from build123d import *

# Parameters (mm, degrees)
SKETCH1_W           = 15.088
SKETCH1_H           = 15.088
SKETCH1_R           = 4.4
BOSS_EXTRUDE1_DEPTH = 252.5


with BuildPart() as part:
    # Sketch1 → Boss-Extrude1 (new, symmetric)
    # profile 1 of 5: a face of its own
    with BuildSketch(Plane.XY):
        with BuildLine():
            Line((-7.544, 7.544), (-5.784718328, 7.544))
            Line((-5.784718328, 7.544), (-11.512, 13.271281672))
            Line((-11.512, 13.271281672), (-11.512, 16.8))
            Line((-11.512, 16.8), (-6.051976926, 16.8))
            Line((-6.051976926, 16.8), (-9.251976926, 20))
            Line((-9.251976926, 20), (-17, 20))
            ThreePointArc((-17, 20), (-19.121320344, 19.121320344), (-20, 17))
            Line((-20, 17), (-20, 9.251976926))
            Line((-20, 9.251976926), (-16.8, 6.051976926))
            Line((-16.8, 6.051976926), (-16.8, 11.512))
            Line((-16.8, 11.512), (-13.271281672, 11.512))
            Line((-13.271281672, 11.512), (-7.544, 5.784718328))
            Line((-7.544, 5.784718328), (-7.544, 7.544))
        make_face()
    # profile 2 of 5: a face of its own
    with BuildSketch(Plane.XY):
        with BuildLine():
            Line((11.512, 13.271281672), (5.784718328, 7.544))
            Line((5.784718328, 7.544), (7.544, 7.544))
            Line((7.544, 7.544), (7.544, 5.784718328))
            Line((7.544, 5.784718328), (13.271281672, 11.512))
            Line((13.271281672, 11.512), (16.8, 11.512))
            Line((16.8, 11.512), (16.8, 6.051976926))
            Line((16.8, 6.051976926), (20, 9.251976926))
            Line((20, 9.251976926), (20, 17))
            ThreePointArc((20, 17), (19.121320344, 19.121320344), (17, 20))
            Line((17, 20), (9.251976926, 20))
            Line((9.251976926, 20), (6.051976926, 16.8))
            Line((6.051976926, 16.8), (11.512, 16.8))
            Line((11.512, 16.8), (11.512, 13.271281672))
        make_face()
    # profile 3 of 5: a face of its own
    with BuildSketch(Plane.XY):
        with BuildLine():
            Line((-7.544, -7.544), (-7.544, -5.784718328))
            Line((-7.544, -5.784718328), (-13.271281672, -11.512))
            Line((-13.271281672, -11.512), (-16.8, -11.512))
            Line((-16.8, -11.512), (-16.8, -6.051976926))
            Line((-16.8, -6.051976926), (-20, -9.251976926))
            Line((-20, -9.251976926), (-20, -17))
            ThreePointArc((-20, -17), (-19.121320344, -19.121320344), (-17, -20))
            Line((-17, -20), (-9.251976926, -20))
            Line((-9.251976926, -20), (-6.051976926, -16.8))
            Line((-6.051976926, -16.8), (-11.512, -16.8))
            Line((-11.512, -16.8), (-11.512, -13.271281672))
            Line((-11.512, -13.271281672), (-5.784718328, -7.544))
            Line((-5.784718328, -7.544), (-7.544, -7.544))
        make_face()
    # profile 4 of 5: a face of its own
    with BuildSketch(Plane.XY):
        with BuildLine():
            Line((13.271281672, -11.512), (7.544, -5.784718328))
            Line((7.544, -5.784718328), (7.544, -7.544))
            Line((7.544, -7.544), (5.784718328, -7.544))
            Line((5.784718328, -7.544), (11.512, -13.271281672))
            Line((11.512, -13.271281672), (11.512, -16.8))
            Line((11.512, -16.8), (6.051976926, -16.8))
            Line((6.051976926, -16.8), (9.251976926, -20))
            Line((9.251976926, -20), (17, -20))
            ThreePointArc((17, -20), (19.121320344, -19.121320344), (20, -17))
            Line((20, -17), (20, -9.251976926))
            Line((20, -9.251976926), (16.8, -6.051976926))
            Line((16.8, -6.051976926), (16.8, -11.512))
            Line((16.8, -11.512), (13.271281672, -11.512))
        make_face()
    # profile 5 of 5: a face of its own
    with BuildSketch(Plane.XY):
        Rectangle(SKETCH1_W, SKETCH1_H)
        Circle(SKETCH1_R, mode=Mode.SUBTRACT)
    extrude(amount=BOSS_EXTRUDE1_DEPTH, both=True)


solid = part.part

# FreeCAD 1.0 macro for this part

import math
import FreeCAD as App
import Part
import Sketcher
from FreeCAD import Vector
Q = App.Units.Quantity

doc = App.newDocument("Part")
body = doc.addObject("PartDesign::Body", "Body")

# Sketch on XY plane
sketch1 = body.newObject("Sketcher::SketchObject", "Sketch")
sketch1.AttachmentSupport = (doc.getObject("XY_Plane"), [""])
sketch1.MapMode = "FlatFace"
sketch1.addGeometry(Part.LineSegment(Vector(-5.8, 7.5, 0), Vector(-11.5, 13.3, 0)), False)
sketch1.addGeometry(Part.LineSegment(Vector(-11.5, 13.3, 0), Vector(-11.5, 16.8, 0)), False)
sketch1.addGeometry(Part.LineSegment(Vector(-11.5, 16.8, 0), Vector(-6.1, 16.8, 0)), False)
sketch1.addGeometry(Part.LineSegment(Vector(-6.1, 16.8, 0), Vector(-9.3, 20, 0)), False)
sketch1.addGeometry(Part.LineSegment(Vector(-9.3, 20, 0), Vector(-17, 20, 0)), False)
sketch1.addGeometry(Part.ArcOfCircle(Part.Circle(Vector(-17, 17, 0), Vector(0, 0, 1), 3), math.radians(90), math.radians(180)), False)
sketch1.addGeometry(Part.LineSegment(Vector(-20, 17, 0), Vector(-20, 9.3, 0)), False)
sketch1.addGeometry(Part.LineSegment(Vector(-20, 9.3, 0), Vector(-16.8, 6.1, 0)), False)
sketch1.addGeometry(Part.LineSegment(Vector(-16.8, 6.1, 0), Vector(-16.8, 11.5, 0)), False)
sketch1.addGeometry(Part.LineSegment(Vector(-16.8, 11.5, 0), Vector(-13.3, 11.5, 0)), False)
sketch1.addGeometry(Part.LineSegment(Vector(-13.3, 11.5, 0), Vector(-7.5, 5.8, 0)), False)
sketch1.addGeometry(Part.LineSegment(Vector(-7.5, 5.8, 0), Vector(-7.5, -5.8, 0)), False)
sketch1.addGeometry(Part.LineSegment(Vector(-7.5, -5.8, 0), Vector(-13.3, -11.5, 0)), False)
sketch1.addGeometry(Part.LineSegment(Vector(-13.3, -11.5, 0), Vector(-16.8, -11.5, 0)), False)
sketch1.addGeometry(Part.LineSegment(Vector(-16.8, -11.5, 0), Vector(-16.8, -6.1, 0)), False)
sketch1.addGeometry(Part.LineSegment(Vector(-16.8, -6.1, 0), Vector(-20, -9.3, 0)), False)
sketch1.addGeometry(Part.LineSegment(Vector(-20, -9.3, 0), Vector(-20, -17, 0)), False)
sketch1.addGeometry(Part.ArcOfCircle(Part.Circle(Vector(-17, -17, 0), Vector(0, 0, 1), 3), math.radians(180), math.radians(270)), False)
sketch1.addGeometry(Part.LineSegment(Vector(-17, -20, 0), Vector(-9.3, -20, 0)), False)
sketch1.addGeometry(Part.LineSegment(Vector(-9.3, -20, 0), Vector(-6.1, -16.8, 0)), False)
sketch1.addGeometry(Part.LineSegment(Vector(-6.1, -16.8, 0), Vector(-11.5, -16.8, 0)), False)
sketch1.addGeometry(Part.LineSegment(Vector(-11.5, -16.8, 0), Vector(-11.5, -13.3, 0)), False)
sketch1.addGeometry(Part.LineSegment(Vector(-11.5, -13.3, 0), Vector(-5.8, -7.5, 0)), False)
sketch1.addGeometry(Part.LineSegment(Vector(-5.8, -7.5, 0), Vector(5.8, -7.5, 0)), False)
sketch1.addGeometry(Part.LineSegment(Vector(5.8, -7.5, 0), Vector(11.5, -13.3, 0)), False)
sketch1.addGeometry(Part.LineSegment(Vector(11.5, -13.3, 0), Vector(11.5, -16.8, 0)), False)
sketch1.addGeometry(Part.LineSegment(Vector(11.5, -16.8, 0), Vector(6.1, -16.8, 0)), False)
sketch1.addGeometry(Part.LineSegment(Vector(6.1, -16.8, 0), Vector(9.3, -20, 0)), False)
sketch1.addGeometry(Part.LineSegment(Vector(9.3, -20, 0), Vector(17, -20, 0)), False)
sketch1.addGeometry(Part.ArcOfCircle(Part.Circle(Vector(17, -17, 0), Vector(0, 0, 1), 3), math.radians(-90), math.radians(0)), False)
sketch1.addGeometry(Part.LineSegment(Vector(20, -17, 0), Vector(20, -9.3, 0)), False)
sketch1.addGeometry(Part.LineSegment(Vector(20, -9.3, 0), Vector(16.8, -6.1, 0)), False)
sketch1.addGeometry(Part.LineSegment(Vector(16.8, -6.1, 0), Vector(16.8, -11.5, 0)), False)
sketch1.addGeometry(Part.LineSegment(Vector(16.8, -11.5, 0), Vector(13.3, -11.5, 0)), False)
sketch1.addGeometry(Part.LineSegment(Vector(13.3, -11.5, 0), Vector(7.5, -5.8, 0)), False)
sketch1.addGeometry(Part.LineSegment(Vector(7.5, -5.8, 0), Vector(7.5, 5.8, 0)), False)
sketch1.addGeometry(Part.LineSegment(Vector(7.5, 5.8, 0), Vector(13.3, 11.5, 0)), False)
sketch1.addGeometry(Part.LineSegment(Vector(13.3, 11.5, 0), Vector(16.8, 11.5, 0)), False)
sketch1.addGeometry(Part.LineSegment(Vector(16.8, 11.5, 0), Vector(16.8, 6.1, 0)), False)
sketch1.addGeometry(Part.LineSegment(Vector(16.8, 6.1, 0), Vector(20, 9.3, 0)), False)
sketch1.addGeometry(Part.LineSegment(Vector(20, 9.3, 0), Vector(20, 17, 0)), False)
sketch1.addGeometry(Part.ArcOfCircle(Part.Circle(Vector(17, 17, 0), Vector(0, 0, 1), 3), math.radians(0), math.radians(90)), False)
sketch1.addGeometry(Part.LineSegment(Vector(17, 20, 0), Vector(9.3, 20, 0)), False)
sketch1.addGeometry(Part.LineSegment(Vector(9.3, 20, 0), Vector(6.1, 16.8, 0)), False)
sketch1.addGeometry(Part.LineSegment(Vector(6.1, 16.8, 0), Vector(11.5, 16.8, 0)), False)
sketch1.addGeometry(Part.LineSegment(Vector(11.5, 16.8, 0), Vector(11.5, 13.3, 0)), False)
sketch1.addGeometry(Part.LineSegment(Vector(11.5, 13.3, 0), Vector(5.8, 7.5, 0)), False)
sketch1.addGeometry(Part.LineSegment(Vector(5.8, 7.5, 0), Vector(-5.8, 7.5, 0)), False)
sketch1.addGeometry(Part.Circle(Vector(0, 0, 0), Vector(0, 0, 1), 4.4), False)
sketch1.addConstraint(Sketcher.Constraint("Coincident", 0, 2, 1, 1))
sketch1.addConstraint(Sketcher.Constraint("Coincident", 1, 2, 2, 1))
sketch1.addConstraint(Sketcher.Constraint("Coincident", 2, 2, 3, 1))
sketch1.addConstraint(Sketcher.Constraint("Coincident", 3, 2, 4, 1))
sketch1.addConstraint(Sketcher.Constraint("Tangent", 4, 2, 5, 1))
sketch1.addConstraint(Sketcher.Constraint("Tangent", 5, 2, 6, 1))
sketch1.addConstraint(Sketcher.Constraint("Coincident", 6, 2, 7, 1))
sketch1.addConstraint(Sketcher.Constraint("Coincident", 7, 2, 8, 1))
sketch1.addConstraint(Sketcher.Constraint("Coincident", 8, 2, 9, 1))
sketch1.addConstraint(Sketcher.Constraint("Coincident", 9, 2, 10, 1))
sketch1.addConstraint(Sketcher.Constraint("Coincident", 10, 2, 11, 1))
sketch1.addConstraint(Sketcher.Constraint("Coincident", 11, 2, 12, 1))
sketch1.addConstraint(Sketcher.Constraint("Coincident", 12, 2, 13, 1))
sketch1.addConstraint(Sketcher.Constraint("Coincident", 13, 2, 14, 1))
sketch1.addConstraint(Sketcher.Constraint("Coincident", 14, 2, 15, 1))
sketch1.addConstraint(Sketcher.Constraint("Coincident", 15, 2, 16, 1))
sketch1.addConstraint(Sketcher.Constraint("Tangent", 16, 2, 17, 1))
sketch1.addConstraint(Sketcher.Constraint("Tangent", 17, 2, 18, 1))
sketch1.addConstraint(Sketcher.Constraint("Coincident", 18, 2, 19, 1))
sketch1.addConstraint(Sketcher.Constraint("Coincident", 19, 2, 20, 1))
sketch1.addConstraint(Sketcher.Constraint("Coincident", 20, 2, 21, 1))
sketch1.addConstraint(Sketcher.Constraint("Coincident", 21, 2, 22, 1))
sketch1.addConstraint(Sketcher.Constraint("Coincident", 22, 2, 23, 1))
sketch1.addConstraint(Sketcher.Constraint("Coincident", 23, 2, 24, 1))
sketch1.addConstraint(Sketcher.Constraint("Coincident", 24, 2, 25, 1))
sketch1.addConstraint(Sketcher.Constraint("Coincident", 25, 2, 26, 1))
sketch1.addConstraint(Sketcher.Constraint("Coincident", 26, 2, 27, 1))
sketch1.addConstraint(Sketcher.Constraint("Coincident", 27, 2, 28, 1))
sketch1.addConstraint(Sketcher.Constraint("Tangent", 28, 2, 29, 1))
sketch1.addConstraint(Sketcher.Constraint("Tangent", 29, 2, 30, 1))
sketch1.addConstraint(Sketcher.Constraint("Coincident", 30, 2, 31, 1))
sketch1.addConstraint(Sketcher.Constraint("Coincident", 31, 2, 32, 1))
sketch1.addConstraint(Sketcher.Constraint("Coincident", 32, 2, 33, 1))
sketch1.addConstraint(Sketcher.Constraint("Coincident", 33, 2, 34, 1))
sketch1.addConstraint(Sketcher.Constraint("Coincident", 34, 2, 35, 1))
sketch1.addConstraint(Sketcher.Constraint("Coincident", 35, 2, 36, 1))
sketch1.addConstraint(Sketcher.Constraint("Coincident", 36, 2, 37, 1))
sketch1.addConstraint(Sketcher.Constraint("Coincident", 37, 2, 38, 1))
sketch1.addConstraint(Sketcher.Constraint("Coincident", 38, 2, 39, 1))
sketch1.addConstraint(Sketcher.Constraint("Coincident", 39, 2, 40, 1))
sketch1.addConstraint(Sketcher.Constraint("Tangent", 40, 2, 41, 1))
sketch1.addConstraint(Sketcher.Constraint("Tangent", 41, 2, 42, 1))
sketch1.addConstraint(Sketcher.Constraint("Coincident", 42, 2, 43, 1))
sketch1.addConstraint(Sketcher.Constraint("Coincident", 43, 2, 44, 1))
sketch1.addConstraint(Sketcher.Constraint("Coincident", 44, 2, 45, 1))
sketch1.addConstraint(Sketcher.Constraint("Coincident", 45, 2, 46, 1))
sketch1.addConstraint(Sketcher.Constraint("Coincident", 46, 2, 47, 1))
sketch1.addConstraint(Sketcher.Constraint("Coincident", 47, 2, 0, 1))
sketch1.addConstraint(Sketcher.Constraint("Vertical", 1))
sketch1.addConstraint(Sketcher.Constraint("Horizontal", 2))
sketch1.addConstraint(Sketcher.Constraint("Horizontal", 4))
sketch1.addConstraint(Sketcher.Constraint("Vertical", 6))
sketch1.addConstraint(Sketcher.Constraint("Vertical", 8))
sketch1.addConstraint(Sketcher.Constraint("Horizontal", 9))
sketch1.addConstraint(Sketcher.Constraint("Vertical", 11))
sketch1.addConstraint(Sketcher.Constraint("Horizontal", 13))
sketch1.addConstraint(Sketcher.Constraint("Vertical", 14))
sketch1.addConstraint(Sketcher.Constraint("Vertical", 16))
sketch1.addConstraint(Sketcher.Constraint("Horizontal", 18))
sketch1.addConstraint(Sketcher.Constraint("Horizontal", 20))
sketch1.addConstraint(Sketcher.Constraint("Vertical", 21))
sketch1.addConstraint(Sketcher.Constraint("Horizontal", 23))
sketch1.addConstraint(Sketcher.Constraint("Vertical", 25))
sketch1.addConstraint(Sketcher.Constraint("Horizontal", 26))
sketch1.addConstraint(Sketcher.Constraint("Horizontal", 28))
sketch1.addConstraint(Sketcher.Constraint("Vertical", 30))
sketch1.addConstraint(Sketcher.Constraint("Vertical", 32))
sketch1.addConstraint(Sketcher.Constraint("Horizontal", 33))
sketch1.addConstraint(Sketcher.Constraint("Vertical", 35))
sketch1.addConstraint(Sketcher.Constraint("Horizontal", 37))
sketch1.addConstraint(Sketcher.Constraint("Vertical", 38))
sketch1.addConstraint(Sketcher.Constraint("Vertical", 40))
sketch1.addConstraint(Sketcher.Constraint("Horizontal", 42))
sketch1.addConstraint(Sketcher.Constraint("Horizontal", 44))
sketch1.addConstraint(Sketcher.Constraint("Vertical", 45))
sketch1.addConstraint(Sketcher.Constraint("Horizontal", 47))
sketch1.addConstraint(Sketcher.Constraint("Coincident", 48, 3, -1, 1))
sketch1.addConstraint(Sketcher.Constraint("Equal", 5, 17))
sketch1.addConstraint(Sketcher.Constraint("Equal", 17, 29))
sketch1.addConstraint(Sketcher.Constraint("Equal", 29, 41))
sketch1.addConstraint(Sketcher.Constraint("Symmetric", 5, 3, 29, 3, -1, 1))
sketch1.addConstraint(Sketcher.Constraint("Symmetric", 17, 3, 41, 3, -1, 1))
sketch1.addConstraint(Sketcher.Constraint("Symmetric", 0, 2, 24, 2, -1, 1))
sketch1.addConstraint(Sketcher.Constraint("Symmetric", 2, 2, 26, 2, -1, 1))
sketch1.addConstraint(Sketcher.Constraint("Symmetric", 7, 2, 31, 2, -1, 1))
sketch1.addConstraint(Sketcher.Constraint("Symmetric", 9, 2, 33, 2, -1, 1))
sketch1.addConstraint(Sketcher.Constraint("Symmetric", 10, 2, 34, 2, -1, 1))
sketch1.addConstraint(Sketcher.Constraint("Symmetric", 12, 2, 36, 2, -1, 1))
sketch1.addConstraint(Sketcher.Constraint("Symmetric", 14, 2, 38, 2, -1, 1))
sketch1.addConstraint(Sketcher.Constraint("Symmetric", 19, 2, 43, 2, -1, 1))
sketch1.addConstraint(Sketcher.Constraint("Symmetric", 21, 2, 45, 2, -1, 1))
sketch1.addConstraint(Sketcher.Constraint("Symmetric", 22, 2, 46, 2, -1, 1))
sketch1.addConstraint(Sketcher.Constraint("Symmetric", 17, 3, 29, 3, -2))
sketch1.addConstraint(Sketcher.Constraint("Symmetric", 21, 2, 24, 2, -2))
sketch1.addConstraint(Sketcher.Constraint("Symmetric", 19, 2, 26, 2, -2))
sketch1.addConstraint(Sketcher.Constraint("Symmetric", 14, 2, 31, 2, -2))
sketch1.addConstraint(Sketcher.Constraint("Symmetric", 12, 2, 33, 2, -2))
sketch1.addConstraint(Sketcher.Constraint("Parallel", 0, 3))
sketch1.addConstraint(Sketcher.Constraint("Parallel", 3, 7))
sketch1.addConstraint(Sketcher.Constraint("Parallel", 7, 10))
sketch1.addConstraint(Sketcher.Constraint("Perpendicular", 10, 12))
sketch1.addConstraint(Sketcher.Constraint("Parallel", 12, 15))
sketch1.addConstraint(Sketcher.Constraint("Parallel", 15, 19))
sketch1.addConstraint(Sketcher.Constraint("Parallel", 19, 22))
sketch1.addConstraint(Sketcher.Constraint("Perpendicular", 22, 24))
sketch1.addConstraint(Sketcher.Constraint("Parallel", 24, 27))
sketch1.addConstraint(Sketcher.Constraint("Parallel", 27, 31))
sketch1.addConstraint(Sketcher.Constraint("Perpendicular", 34, 36))
sketch1.addConstraint(Sketcher.Constraint("Parallel", 36, 39))
sketch1.addConstraint(Sketcher.Constraint("Parallel", 39, 43))
sketch1.addConstraint(Sketcher.Constraint("Horizontal", 15, 2, 30, 2))
sketch1.addConstraint(Sketcher.Constraint("Equal", 37, 1))
sketch1.addConstraint(Sketcher.Constraint("Equal", 42, 6))
sketch1.addConstraint(Sketcher.Constraint("Equal", 44, 8))
sketch1.addConstraint(Sketcher.Constraint("Equal", 47, 11))
sketch1.addConstraint(Sketcher.Constraint("Equal", 3, 7))
sketch1.addConstraint(Sketcher.Constraint("Equal", 0, 10))
sketch1.addConstraint(Sketcher.Constraint("Radius", 5, Q("3 mm")))
sketch1.addConstraint(Sketcher.Constraint("Diameter", 48, Q("8.8 mm")))
sketch1.addConstraint(Sketcher.Constraint("DistanceX", 5, 3, -1, 1, Q("17 mm")))
sketch1.addConstraint(Sketcher.Constraint("DistanceY", -1, 1, 1, 2, Q("16.8 mm")))
sketch1.addConstraint(Sketcher.Constraint("DistanceX", 0, 2, -1, 1, Q("11.512 mm")))
sketch1.addConstraint(Sketcher.Constraint("DistanceX", 10, 2, -1, 1, Q("7.544 mm")))
sketch1.addConstraint(Sketcher.Constraint("Distance", 0, Q("8.099599 mm")))
sketch1.addConstraint(Sketcher.Constraint("DistanceX", 2, 1, 2, 2, Q("5.460023 mm")))
pad1 = body.newObject("PartDesign::Pad", "Pad")
pad1.Profile = sketch1
pad1.Length = 505
pad1.Midplane = True

doc.recompute()
